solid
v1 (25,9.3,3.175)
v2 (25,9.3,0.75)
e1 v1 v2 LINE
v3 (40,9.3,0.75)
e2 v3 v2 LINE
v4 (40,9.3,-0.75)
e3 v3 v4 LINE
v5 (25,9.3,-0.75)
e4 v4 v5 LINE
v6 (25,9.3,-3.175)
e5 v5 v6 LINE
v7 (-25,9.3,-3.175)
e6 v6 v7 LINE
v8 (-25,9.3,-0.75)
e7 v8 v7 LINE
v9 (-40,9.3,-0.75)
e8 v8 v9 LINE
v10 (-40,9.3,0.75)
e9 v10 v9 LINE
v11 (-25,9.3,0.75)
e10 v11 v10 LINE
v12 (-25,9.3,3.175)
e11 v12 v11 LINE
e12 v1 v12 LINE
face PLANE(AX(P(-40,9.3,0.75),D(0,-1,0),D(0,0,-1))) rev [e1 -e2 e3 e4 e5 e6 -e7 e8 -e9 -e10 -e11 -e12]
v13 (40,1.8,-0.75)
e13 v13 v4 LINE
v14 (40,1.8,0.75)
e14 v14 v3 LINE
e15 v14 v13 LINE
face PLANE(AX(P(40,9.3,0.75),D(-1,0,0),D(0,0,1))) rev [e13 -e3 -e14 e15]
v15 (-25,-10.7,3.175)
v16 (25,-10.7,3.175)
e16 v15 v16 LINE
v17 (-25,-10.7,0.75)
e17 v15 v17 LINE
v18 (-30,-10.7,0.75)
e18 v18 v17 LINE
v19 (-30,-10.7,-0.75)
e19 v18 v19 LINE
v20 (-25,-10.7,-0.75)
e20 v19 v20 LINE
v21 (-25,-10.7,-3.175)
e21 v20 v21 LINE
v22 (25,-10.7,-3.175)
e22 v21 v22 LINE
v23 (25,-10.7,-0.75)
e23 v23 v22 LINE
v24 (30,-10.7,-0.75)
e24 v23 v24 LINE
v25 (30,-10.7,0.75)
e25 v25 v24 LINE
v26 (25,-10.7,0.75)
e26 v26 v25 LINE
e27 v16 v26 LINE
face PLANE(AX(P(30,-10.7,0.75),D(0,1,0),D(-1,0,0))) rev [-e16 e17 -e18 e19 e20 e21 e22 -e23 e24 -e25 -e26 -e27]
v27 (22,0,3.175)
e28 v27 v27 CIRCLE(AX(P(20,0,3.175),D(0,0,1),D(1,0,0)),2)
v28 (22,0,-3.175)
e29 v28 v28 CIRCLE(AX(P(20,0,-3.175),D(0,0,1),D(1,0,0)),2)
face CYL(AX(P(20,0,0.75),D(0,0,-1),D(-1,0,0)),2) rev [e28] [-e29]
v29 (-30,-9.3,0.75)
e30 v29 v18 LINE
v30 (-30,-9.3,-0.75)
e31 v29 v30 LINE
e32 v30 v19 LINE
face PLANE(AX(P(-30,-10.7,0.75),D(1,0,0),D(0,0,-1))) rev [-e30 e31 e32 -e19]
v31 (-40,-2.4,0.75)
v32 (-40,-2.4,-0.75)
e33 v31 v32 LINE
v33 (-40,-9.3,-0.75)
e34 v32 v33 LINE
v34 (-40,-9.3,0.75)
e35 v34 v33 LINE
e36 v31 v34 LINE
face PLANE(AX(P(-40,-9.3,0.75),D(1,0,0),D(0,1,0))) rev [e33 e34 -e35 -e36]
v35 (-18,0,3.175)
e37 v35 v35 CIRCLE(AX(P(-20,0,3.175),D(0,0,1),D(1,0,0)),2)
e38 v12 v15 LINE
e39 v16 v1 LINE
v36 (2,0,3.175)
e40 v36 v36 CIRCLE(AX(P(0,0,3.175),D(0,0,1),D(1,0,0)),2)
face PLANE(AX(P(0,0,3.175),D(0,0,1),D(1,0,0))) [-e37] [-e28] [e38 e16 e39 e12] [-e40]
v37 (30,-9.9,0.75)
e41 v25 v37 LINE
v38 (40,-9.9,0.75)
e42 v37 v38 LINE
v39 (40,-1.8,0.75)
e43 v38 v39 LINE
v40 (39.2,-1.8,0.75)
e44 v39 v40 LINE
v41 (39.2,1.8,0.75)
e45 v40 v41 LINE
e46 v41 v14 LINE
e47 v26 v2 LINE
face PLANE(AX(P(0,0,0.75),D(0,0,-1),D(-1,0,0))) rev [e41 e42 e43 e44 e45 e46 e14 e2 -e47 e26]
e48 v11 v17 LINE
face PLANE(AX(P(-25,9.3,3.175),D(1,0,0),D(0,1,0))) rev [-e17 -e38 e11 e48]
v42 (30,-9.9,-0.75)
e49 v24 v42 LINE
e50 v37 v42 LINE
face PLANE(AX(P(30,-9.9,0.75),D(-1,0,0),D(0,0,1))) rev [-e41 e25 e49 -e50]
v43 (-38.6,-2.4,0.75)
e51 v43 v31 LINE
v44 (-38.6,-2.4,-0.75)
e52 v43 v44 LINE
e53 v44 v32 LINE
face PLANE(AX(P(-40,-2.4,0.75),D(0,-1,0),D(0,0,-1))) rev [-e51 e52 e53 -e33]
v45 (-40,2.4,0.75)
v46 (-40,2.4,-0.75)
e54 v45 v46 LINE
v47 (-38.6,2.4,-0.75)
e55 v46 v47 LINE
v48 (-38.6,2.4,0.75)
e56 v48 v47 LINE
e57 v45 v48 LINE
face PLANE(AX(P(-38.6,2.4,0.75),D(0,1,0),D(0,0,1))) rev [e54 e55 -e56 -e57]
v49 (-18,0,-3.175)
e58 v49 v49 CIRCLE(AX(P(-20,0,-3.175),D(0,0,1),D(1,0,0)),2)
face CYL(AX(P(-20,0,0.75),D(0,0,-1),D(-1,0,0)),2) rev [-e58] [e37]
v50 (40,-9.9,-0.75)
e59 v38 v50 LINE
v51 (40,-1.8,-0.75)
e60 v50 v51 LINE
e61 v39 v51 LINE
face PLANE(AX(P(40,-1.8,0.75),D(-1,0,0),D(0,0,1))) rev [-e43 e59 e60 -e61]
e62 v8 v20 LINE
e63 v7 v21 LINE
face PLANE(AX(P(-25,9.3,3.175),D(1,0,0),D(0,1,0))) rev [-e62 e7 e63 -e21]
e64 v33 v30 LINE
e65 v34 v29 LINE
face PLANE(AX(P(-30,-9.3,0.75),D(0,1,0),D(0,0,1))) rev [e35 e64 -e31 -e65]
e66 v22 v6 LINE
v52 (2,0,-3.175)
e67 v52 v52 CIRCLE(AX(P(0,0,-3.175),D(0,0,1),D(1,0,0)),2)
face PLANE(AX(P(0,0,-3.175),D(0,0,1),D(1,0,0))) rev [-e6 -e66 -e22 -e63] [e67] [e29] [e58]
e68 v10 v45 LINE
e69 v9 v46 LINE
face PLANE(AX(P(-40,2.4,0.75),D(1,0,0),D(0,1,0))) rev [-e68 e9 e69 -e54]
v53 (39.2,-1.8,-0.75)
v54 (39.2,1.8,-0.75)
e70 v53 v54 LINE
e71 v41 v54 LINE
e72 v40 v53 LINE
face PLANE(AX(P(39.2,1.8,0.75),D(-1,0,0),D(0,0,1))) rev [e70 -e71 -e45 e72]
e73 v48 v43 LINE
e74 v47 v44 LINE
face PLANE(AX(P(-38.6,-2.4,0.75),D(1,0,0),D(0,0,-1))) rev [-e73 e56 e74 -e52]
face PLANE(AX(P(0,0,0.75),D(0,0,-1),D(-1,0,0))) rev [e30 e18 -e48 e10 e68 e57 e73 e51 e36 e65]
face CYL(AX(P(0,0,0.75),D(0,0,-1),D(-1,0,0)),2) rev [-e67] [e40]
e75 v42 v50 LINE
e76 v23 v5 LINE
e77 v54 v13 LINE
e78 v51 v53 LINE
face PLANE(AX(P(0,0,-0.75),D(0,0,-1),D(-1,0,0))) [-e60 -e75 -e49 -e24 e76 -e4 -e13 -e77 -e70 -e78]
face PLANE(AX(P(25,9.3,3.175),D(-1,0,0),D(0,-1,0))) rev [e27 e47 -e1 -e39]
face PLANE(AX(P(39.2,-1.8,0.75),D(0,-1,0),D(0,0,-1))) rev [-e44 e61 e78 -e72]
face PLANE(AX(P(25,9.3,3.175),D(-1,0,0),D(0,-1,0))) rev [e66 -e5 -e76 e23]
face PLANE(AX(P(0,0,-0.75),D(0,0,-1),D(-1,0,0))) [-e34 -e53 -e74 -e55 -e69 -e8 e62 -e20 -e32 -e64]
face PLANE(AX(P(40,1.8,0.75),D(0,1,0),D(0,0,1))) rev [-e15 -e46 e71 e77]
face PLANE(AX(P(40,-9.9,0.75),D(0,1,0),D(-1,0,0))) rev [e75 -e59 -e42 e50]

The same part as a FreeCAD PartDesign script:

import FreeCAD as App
import Part
import Sketcher

V = App.Vector
Q = App.Units.Quantity


def add_polygon(sketch, points):
    """Adds a closed chain of lines whose ends are joined by coincident constraints."""
    first, n = sketch.GeometryCount, len(points)
    for a, b in zip(points, points[1:] + points[:1]):
        sketch.addGeometry(Part.LineSegment(App.Vector(*a, 0), App.Vector(*b, 0)), False)
    for i in range(n):
        sketch.addConstraint(Sketcher.Constraint("Coincident", first + i, 2, first + (i + 1) % n, 1))

doc = App.newDocument("Part")
body = doc.addObject("PartDesign::Body", "Body")

# Sketch on XY plane
sketch1 = doc.addObject("Sketcher::SketchObject", "Sketch")
body.addObject(sketch1)
sketch1.AttachmentSupport = (doc.XY_Plane, [""])
sketch1.MapMode = "FlatFace"
add_polygon(sketch1, [(40, 9.3), (-40, 9.3), (-40, 2.4), (-38.6, 2.4), (-38.6, -2.4), (-40, -2.4), (-40, -9.3), (-30, -9.3), (-30, -10.7), (30, -10.7), (30, -9.9), (40, -9.9), (40, -1.8), (39.2, -1.8), (39.2, 1.8), (40, 1.8)])  # lines 0-15
sketch1.addGeometry(Part.Circle(V(20, 0, 0), V(0, 0, 1), 2), False)  # 16
sketch1.addGeometry(Part.Circle(V(0, 0, 0), V(0, 0, 1), 2), False)  # 17
sketch1.addGeometry(Part.Circle(V(-20, 0, 0), V(0, 0, 1), 2), False)  # 18
sketch1.addConstraint(Sketcher.Constraint("Horizontal", 0))
sketch1.addConstraint(Sketcher.Constraint("Vertical", 1))
sketch1.addConstraint(Sketcher.Constraint("Horizontal", 2))
sketch1.addConstraint(Sketcher.Constraint("Vertical", 3))
sketch1.addConstraint(Sketcher.Constraint("Horizontal", 4))
sketch1.addConstraint(Sketcher.Constraint("Vertical", 5))
sketch1.addConstraint(Sketcher.Constraint("Horizontal", 6))
sketch1.addConstraint(Sketcher.Constraint("Vertical", 7))
sketch1.addConstraint(Sketcher.Constraint("Horizontal", 8))
sketch1.addConstraint(Sketcher.Constraint("Vertical", 9))
sketch1.addConstraint(Sketcher.Constraint("Horizontal", 10))
sketch1.addConstraint(Sketcher.Constraint("Vertical", 11))
sketch1.addConstraint(Sketcher.Constraint("Horizontal", 12))
sketch1.addConstraint(Sketcher.Constraint("Vertical", 13))
sketch1.addConstraint(Sketcher.Constraint("Horizontal", 14))
sketch1.addConstraint(Sketcher.Constraint("Vertical", 15))
sketch1.addConstraint(Sketcher.Constraint("Coincident", 17, 3, -1, 1))
sketch1.addConstraint(Sketcher.Constraint("Equal", 16, 17))
sketch1.addConstraint(Sketcher.Constraint("Equal", 17, 18))
sketch1.addConstraint(Sketcher.Constraint("Symmetric", 16, 3, 18, 3, -1, 1))
sketch1.addConstraint(Sketcher.Constraint("Symmetric", 5, 2, 15, 2, -1, 1))
sketch1.addConstraint(Sketcher.Constraint("Symmetric", 1, 2, 4, 2, -1))
sketch1.addConstraint(Sketcher.Constraint("Symmetric", 11, 2, 14, 2, -1))
sketch1.addConstraint(Sketcher.Constraint("PointOnObject", 16, 3, -1))
sketch1.addConstraint(Sketcher.Constraint("Equal", 6, 10))
sketch1.addConstraint(Sketcher.Constraint("Equal", 4, 7))
sketch1.addConstraint(Sketcher.Constraint("Equal", 14, 9))
sketch1.addConstraint(Sketcher.Constraint("Diameter", 16, Q("4 mm")))
sketch1.addConstraint(Sketcher.Constraint("DistanceX", 0, 2, 0, 1, Q("80 mm")))
sketch1.addConstraint(Sketcher.Constraint("DistanceX", 6, 1, 6, 2, Q("10 mm")))
sketch1.addConstraint(Sketcher.Constraint("DistanceX", 2, 1, 2, 2, Q("1.4 mm")))
sketch1.addConstraint(Sketcher.Constraint("DistanceX", 12, 2, 12, 1, Q("0.8 mm")))
sketch1.addConstraint(Sketcher.Constraint("DistanceY", 1, 2, 1, 1, Q("6.9 mm")))
sketch1.addConstraint(Sketcher.Constraint("DistanceY", 3, 2, 3, 1, Q("4.8 mm")))
sketch1.addConstraint(Sketcher.Constraint("DistanceY", 11, 1, 11, 2, Q("8.1 mm")))
sketch1.addConstraint(Sketcher.Constraint("DistanceX", -1, 1, 16, 3, Q("20 mm")))
pad1 = doc.addObject("PartDesign::Pad", "Pad")
body.addObject(pad1)
pad1.Profile = sketch1
pad1.Length = 1.5
pad1.Midplane = True

# Sketch on XY plane
sketch2 = doc.addObject("Sketcher::SketchObject", "Sketch001")
body.addObject(sketch2)
sketch2.AttachmentSupport = (doc.XY_Plane, [""])
sketch2.MapMode = "FlatFace"
add_polygon(sketch2, [(-25, 9.3), (-25, -10.7), (25, -10.7), (25, 9.3)])  # lines 0-3
sketch2.addGeometry(Part.Circle(V(-20, 0, 0), V(0, 0, 1), 2), False)  # 4
sketch2.addGeometry(Part.Circle(V(0, 0, 0), V(0, 0, 1), 2), False)  # 5
sketch2.addGeometry(Part.Circle(V(20, 0, 0), V(0, 0, 1), 2), False)  # 6
sketch2.addConstraint(Sketcher.Constraint("Vertical", 0))
sketch2.addConstraint(Sketcher.Constraint("Horizontal", 1))
sketch2.addConstraint(Sketcher.Constraint("Vertical", 2))
sketch2.addConstraint(Sketcher.Constraint("Horizontal", 3))
sketch2.addConstraint(Sketcher.Constraint("Coincident", 5, 3, -1, 1))
sketch2.addConstraint(Sketcher.Constraint("Equal", 4, 5))
sketch2.addConstraint(Sketcher.Constraint("Equal", 5, 6))
sketch2.addConstraint(Sketcher.Constraint("Symmetric", 4, 3, 6, 3, -1, 1))
sketch2.addConstraint(Sketcher.Constraint("PointOnObject", 4, 3, -1))
sketch2.addConstraint(Sketcher.Constraint("Diameter", 4, Q("4 mm")))
sketch2.addConstraint(Sketcher.Constraint("DistanceX", 1, 1, 1, 2, Q("50 mm")))
sketch2.addConstraint(Sketcher.Constraint("DistanceY", 0, 2, 0, 1, Q("20 mm")))
sketch2.addConstraint(Sketcher.Constraint("DistanceX", 4, 3, -1, 1, Q("20 mm")))
sketch2.addConstraint(Sketcher.Constraint("DistanceX", 0, 2, -1, 1, Q("25 mm")))
sketch2.addConstraint(Sketcher.Constraint("DistanceY", 0, 2, -1, 1, Q("10.7 mm")))
pad2 = doc.addObject("PartDesign::Pad", "Pad001")
body.addObject(pad2)
pad2.Profile = sketch2
pad2.Length = 6.35
pad2.Midplane = True

doc.recompute()
